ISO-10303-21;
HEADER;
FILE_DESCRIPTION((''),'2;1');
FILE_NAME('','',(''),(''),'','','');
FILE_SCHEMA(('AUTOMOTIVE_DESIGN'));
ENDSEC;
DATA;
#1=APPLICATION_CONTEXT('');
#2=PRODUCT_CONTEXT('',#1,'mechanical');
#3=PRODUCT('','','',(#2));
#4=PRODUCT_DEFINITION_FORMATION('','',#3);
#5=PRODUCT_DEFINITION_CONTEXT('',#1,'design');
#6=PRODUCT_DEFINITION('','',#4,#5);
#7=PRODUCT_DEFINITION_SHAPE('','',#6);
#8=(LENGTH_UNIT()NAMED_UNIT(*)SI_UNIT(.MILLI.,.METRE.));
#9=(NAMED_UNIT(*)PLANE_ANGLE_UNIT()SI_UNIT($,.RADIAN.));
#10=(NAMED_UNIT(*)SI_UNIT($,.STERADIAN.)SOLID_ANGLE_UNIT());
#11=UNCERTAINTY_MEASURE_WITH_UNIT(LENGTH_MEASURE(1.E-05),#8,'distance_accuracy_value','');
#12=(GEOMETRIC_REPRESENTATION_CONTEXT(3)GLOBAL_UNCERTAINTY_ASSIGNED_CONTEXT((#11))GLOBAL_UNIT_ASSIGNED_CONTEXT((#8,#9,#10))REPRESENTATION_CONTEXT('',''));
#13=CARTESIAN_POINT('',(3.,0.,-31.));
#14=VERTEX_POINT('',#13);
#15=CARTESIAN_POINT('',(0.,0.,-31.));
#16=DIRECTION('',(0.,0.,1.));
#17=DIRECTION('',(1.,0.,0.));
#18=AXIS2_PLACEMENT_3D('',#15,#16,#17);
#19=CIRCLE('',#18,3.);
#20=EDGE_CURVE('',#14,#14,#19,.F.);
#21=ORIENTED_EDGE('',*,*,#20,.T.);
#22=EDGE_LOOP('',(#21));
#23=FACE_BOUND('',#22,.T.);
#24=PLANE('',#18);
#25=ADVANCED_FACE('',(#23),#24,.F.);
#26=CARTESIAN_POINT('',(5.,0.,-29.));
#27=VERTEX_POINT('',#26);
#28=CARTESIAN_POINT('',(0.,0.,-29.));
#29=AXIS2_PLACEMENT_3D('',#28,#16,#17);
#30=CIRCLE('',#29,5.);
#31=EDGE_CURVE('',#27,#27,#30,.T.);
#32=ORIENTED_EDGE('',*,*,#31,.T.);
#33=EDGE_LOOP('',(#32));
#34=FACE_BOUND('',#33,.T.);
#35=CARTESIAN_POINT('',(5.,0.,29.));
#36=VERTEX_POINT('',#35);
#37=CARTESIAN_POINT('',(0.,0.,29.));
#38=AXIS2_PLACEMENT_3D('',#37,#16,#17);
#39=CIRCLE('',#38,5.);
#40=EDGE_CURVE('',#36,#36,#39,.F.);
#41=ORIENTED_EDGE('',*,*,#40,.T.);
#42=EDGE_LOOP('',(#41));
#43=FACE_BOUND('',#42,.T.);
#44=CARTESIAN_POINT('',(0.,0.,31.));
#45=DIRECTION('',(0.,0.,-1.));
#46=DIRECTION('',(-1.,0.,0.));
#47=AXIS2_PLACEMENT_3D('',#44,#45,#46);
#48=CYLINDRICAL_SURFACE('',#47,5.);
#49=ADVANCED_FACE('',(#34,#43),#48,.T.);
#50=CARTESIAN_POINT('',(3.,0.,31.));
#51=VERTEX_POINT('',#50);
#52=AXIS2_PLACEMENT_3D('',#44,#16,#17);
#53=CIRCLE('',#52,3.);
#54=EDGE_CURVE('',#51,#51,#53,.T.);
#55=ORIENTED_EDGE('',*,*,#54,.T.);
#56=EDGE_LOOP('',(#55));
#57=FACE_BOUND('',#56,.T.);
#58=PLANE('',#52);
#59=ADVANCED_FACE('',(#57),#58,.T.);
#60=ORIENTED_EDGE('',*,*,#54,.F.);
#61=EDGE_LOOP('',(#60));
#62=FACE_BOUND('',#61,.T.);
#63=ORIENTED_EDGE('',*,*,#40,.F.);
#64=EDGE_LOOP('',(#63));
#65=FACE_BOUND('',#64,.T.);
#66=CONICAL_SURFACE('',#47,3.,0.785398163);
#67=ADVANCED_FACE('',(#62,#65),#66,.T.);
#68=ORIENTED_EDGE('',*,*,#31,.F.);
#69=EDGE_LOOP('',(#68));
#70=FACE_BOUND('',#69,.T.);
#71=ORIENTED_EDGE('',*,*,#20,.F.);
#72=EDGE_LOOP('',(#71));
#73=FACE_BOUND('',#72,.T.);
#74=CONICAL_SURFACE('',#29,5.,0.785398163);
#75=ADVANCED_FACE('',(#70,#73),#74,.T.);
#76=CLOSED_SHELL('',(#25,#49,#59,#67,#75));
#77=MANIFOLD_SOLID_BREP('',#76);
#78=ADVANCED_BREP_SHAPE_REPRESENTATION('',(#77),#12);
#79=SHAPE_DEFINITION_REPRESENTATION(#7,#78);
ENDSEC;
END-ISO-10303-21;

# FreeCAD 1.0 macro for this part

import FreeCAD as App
import Part
import Sketcher
from FreeCAD import Vector
Q = App.Units.Quantity


def edges_at(feature, points):
    """Names of the edges that pass closest to the given points."""
    edges = feature.Shape.Edges
    near = lambda p: min(range(len(edges)), key=lambda i: edges[i].distToShape(Part.Vertex(*p))[0])
    return sorted({f"Edge{near(p) + 1}" for p in points})

doc = App.newDocument("Part")
body = doc.addObject("PartDesign::Body", "Body")

# Sketch on XY plane
sketch1 = doc.addObject("Sketcher::SketchObject", "Sketch")
body.addObject(sketch1)
sketch1.AttachmentSupport = (doc.XY_Plane, [""])
sketch1.MapMode = "FlatFace"
sketch1.addGeometry(Part.Circle(Vector(0, 0, 0), Vector(0, 0, 1), 5), False)
sketch1.addConstraint([
    Sketcher.Constraint("Coincident", 0, 3, -1, 1),
    Sketcher.Constraint("Diameter", 0, Q("10 mm")),
])
pad1 = doc.addObject("PartDesign::Pad", "Pad")
body.addObject(pad1)
pad1.Profile = sketch1
pad1.Length = 62
pad1.Midplane = True
doc.recompute()

chamfer = doc.addObject("PartDesign::Chamfer", "Chamfer")
body.addObject(chamfer)
chamfer.Base = (pad1, edges_at(pad1, [(-5, 0, -31), (-5, 0, 31)]))
chamfer.Size = 2

doc.recompute()
